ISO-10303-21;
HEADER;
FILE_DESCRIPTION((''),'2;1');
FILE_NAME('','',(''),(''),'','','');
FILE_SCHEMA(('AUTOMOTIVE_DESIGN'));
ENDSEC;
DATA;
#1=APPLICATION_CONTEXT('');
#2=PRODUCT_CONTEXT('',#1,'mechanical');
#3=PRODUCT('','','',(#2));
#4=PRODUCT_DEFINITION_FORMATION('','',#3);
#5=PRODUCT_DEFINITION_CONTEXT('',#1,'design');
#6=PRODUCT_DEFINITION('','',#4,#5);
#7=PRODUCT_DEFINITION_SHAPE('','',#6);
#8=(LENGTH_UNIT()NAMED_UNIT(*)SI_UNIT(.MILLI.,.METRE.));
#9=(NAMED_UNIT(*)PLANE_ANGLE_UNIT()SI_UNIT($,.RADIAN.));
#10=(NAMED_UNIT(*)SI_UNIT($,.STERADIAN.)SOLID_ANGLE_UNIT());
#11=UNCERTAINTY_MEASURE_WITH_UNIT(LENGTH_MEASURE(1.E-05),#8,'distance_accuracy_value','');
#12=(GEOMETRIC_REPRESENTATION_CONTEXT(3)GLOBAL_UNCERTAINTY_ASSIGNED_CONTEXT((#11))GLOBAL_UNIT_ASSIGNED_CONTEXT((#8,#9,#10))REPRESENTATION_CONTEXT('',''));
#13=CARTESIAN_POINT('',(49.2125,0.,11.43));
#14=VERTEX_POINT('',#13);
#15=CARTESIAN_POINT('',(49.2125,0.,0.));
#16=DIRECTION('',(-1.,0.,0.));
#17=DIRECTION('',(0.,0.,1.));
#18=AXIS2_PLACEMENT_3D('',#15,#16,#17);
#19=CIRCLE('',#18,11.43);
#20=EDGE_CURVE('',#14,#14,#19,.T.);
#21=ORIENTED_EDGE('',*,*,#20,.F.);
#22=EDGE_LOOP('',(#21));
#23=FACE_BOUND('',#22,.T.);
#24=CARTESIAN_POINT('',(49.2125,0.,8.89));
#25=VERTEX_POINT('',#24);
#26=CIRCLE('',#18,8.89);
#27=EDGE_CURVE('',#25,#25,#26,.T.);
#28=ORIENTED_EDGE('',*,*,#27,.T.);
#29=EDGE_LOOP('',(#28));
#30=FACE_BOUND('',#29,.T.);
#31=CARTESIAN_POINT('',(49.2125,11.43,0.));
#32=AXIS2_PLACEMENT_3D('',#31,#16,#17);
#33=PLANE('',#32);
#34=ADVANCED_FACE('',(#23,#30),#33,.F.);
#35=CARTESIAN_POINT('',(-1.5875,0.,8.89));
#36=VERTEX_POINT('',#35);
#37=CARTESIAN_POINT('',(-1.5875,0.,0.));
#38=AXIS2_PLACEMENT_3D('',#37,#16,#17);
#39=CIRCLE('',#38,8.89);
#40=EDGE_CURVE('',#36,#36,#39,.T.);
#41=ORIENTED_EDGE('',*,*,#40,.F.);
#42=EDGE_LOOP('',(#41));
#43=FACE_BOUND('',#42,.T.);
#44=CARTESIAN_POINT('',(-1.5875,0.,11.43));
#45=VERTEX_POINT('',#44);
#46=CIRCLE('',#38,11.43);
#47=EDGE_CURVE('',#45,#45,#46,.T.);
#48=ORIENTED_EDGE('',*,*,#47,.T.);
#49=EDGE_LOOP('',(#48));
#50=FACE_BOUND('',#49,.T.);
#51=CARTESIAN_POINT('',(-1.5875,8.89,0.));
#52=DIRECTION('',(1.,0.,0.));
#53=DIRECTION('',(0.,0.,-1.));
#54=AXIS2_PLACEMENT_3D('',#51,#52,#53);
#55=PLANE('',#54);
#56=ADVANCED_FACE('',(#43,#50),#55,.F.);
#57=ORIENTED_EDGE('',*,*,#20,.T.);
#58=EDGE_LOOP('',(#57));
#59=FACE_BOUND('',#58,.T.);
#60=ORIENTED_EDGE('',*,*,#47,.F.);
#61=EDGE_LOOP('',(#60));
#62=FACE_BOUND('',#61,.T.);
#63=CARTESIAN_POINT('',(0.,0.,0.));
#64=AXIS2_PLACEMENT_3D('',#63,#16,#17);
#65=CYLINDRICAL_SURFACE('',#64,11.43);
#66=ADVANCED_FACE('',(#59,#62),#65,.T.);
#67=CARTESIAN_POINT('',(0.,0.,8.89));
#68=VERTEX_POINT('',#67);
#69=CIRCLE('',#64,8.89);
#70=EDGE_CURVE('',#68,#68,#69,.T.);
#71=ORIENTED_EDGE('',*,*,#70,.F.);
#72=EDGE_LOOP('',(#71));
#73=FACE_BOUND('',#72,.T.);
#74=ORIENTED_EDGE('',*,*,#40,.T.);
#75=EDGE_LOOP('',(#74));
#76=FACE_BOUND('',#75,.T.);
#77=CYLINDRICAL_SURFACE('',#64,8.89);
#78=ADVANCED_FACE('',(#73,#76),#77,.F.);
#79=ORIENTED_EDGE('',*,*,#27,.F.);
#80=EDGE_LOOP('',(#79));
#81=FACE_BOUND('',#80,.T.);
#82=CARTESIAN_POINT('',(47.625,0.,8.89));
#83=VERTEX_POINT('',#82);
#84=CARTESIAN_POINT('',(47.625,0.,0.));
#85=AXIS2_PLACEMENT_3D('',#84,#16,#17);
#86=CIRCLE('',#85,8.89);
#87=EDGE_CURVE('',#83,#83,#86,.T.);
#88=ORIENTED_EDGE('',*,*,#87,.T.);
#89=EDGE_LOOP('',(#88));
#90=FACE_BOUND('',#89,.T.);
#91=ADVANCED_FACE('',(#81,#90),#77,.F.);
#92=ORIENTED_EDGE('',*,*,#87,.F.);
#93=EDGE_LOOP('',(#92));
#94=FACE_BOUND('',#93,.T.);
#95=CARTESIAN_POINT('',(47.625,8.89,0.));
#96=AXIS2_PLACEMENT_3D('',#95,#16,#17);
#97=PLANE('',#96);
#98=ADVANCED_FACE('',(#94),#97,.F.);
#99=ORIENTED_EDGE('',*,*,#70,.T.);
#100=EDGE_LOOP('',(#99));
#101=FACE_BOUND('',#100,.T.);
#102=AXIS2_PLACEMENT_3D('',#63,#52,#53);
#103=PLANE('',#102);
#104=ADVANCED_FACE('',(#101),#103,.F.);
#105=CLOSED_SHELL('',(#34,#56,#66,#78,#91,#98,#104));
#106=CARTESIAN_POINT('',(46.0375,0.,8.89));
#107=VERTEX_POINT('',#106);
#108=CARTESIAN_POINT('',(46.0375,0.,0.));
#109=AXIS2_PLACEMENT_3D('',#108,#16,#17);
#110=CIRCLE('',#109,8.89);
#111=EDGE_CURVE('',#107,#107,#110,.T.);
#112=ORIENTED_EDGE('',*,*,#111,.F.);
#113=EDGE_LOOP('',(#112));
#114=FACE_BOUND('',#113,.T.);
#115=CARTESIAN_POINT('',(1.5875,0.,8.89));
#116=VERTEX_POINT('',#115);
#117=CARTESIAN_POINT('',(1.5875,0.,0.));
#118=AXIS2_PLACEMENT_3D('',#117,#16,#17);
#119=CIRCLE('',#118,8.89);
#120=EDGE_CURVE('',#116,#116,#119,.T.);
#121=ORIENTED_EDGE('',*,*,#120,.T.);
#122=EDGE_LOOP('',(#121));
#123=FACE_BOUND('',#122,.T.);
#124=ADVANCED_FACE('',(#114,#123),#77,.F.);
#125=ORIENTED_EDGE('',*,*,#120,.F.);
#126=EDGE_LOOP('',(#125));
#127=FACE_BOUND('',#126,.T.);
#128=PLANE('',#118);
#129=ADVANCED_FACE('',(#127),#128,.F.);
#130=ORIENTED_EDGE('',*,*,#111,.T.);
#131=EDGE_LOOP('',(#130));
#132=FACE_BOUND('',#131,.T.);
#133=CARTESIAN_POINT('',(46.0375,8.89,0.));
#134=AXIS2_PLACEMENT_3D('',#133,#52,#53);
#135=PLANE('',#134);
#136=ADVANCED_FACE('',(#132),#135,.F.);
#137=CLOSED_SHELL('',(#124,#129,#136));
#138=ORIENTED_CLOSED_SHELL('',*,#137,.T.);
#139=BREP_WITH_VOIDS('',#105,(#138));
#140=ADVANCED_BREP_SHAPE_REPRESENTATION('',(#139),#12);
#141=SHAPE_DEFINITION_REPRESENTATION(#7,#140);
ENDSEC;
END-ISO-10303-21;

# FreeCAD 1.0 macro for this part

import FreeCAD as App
import Part
import Sketcher
Q = App.Units.Quantity


def add_polygon(sketch, points):
    """Adds a closed chain of lines whose ends are joined by coincident constraints."""
    first, n = sketch.GeometryCount, len(points)
    for a, b in zip(points, points[1:] + points[:1]):
        sketch.addGeometry(Part.LineSegment(App.Vector(*a, 0), App.Vector(*b, 0)), False)
    for i in range(n):
        sketch.addConstraint(Sketcher.Constraint("Coincident", first + i, 2, first + (i + 1) % n, 1))

doc = App.newDocument("Part")
params = doc.addObject("Spreadsheet::Sheet", "Params")
for row, (alias, value) in enumerate([
    ("sketch1_width", "2 in"),
    ("sketch1_height", "0.1 in"),
    ("sketch1_width2", "1.75 in"),
    ("sketch1_height2", "0.35 in"),
    ("revolution_angle", "360 deg"),
], start=1):
    params.set(f"A{row}", alias)
    params.set(f"B{row}", "=" + value)
    params.setAlias(f"B{row}", alias)

body = doc.addObject("PartDesign::Body", "Body")

sketch1 = body.newObject("Sketcher::SketchObject", "Sketch")
sketch1.AttachmentSupport = (doc.getObject("XY_Plane"), [""])
sketch1.MapMode = "FlatFace"
add_polygon(sketch1, [(0, 8.9), (0, 0), (1.6, 0), (1.6, 8.9), (46, 8.9), (46, 0), (47.6, 0), (47.6, 8.9), (49.2, 8.9), (49.2, 11.4), (-1.6, 11.4), (-1.6, 8.9)])
sketch1.addConstraint([
    Sketcher.Constraint("Vertical", 0),
    Sketcher.Constraint("Horizontal", 1),
    Sketcher.Constraint("Vertical", 2),
    Sketcher.Constraint("Horizontal", 3),
    Sketcher.Constraint("Vertical", 4),
    Sketcher.Constraint("Horizontal", 5),
    Sketcher.Constraint("Vertical", 6),
    Sketcher.Constraint("Horizontal", 7),
    Sketcher.Constraint("Vertical", 8),
    Sketcher.Constraint("Horizontal", 9),
    Sketcher.Constraint("Vertical", 10),
    Sketcher.Constraint("Horizontal", 11),
    Sketcher.Constraint("Coincident", 0, 2, -1, 1),
    Sketcher.Constraint("Symmetric", 2, 2, 10, 2, -2),
    Sketcher.Constraint("PointOnObject", 4, 2, -1),
    Sketcher.Constraint("Horizontal", 3, 2, 6, 2),
    Sketcher.Constraint("Equal", 1, 5),
    Sketcher.Constraint("Equal", 5, 7),
    Sketcher.Constraint("DistanceX", 9, 2, 9, 1, Q("2 in")),
    Sketcher.Constraint("DistanceY", 8, 1, 8, 2, Q("0.1 in")),
    Sketcher.Constraint("DistanceX", 3, 1, 3, 2, Q("1.75 in")),
    Sketcher.Constraint("DistanceY", 0, 2, 0, 1, Q("0.35 in")),
])
sketch1.setExpression("Constraints[30]", "Params.sketch1_width")
sketch1.setExpression("Constraints[31]", "Params.sketch1_height")
sketch1.setExpression("Constraints[32]", "Params.sketch1_width2")
sketch1.setExpression("Constraints[33]", "Params.sketch1_height2")
revolution = body.newObject("PartDesign::Revolution", "Revolution")
revolution.Profile = sketch1
revolution.ReferenceAxis = (sketch1, ["H_Axis"])
revolution.setExpression("Angle", "Params.revolution_angle")

doc.recompute()
